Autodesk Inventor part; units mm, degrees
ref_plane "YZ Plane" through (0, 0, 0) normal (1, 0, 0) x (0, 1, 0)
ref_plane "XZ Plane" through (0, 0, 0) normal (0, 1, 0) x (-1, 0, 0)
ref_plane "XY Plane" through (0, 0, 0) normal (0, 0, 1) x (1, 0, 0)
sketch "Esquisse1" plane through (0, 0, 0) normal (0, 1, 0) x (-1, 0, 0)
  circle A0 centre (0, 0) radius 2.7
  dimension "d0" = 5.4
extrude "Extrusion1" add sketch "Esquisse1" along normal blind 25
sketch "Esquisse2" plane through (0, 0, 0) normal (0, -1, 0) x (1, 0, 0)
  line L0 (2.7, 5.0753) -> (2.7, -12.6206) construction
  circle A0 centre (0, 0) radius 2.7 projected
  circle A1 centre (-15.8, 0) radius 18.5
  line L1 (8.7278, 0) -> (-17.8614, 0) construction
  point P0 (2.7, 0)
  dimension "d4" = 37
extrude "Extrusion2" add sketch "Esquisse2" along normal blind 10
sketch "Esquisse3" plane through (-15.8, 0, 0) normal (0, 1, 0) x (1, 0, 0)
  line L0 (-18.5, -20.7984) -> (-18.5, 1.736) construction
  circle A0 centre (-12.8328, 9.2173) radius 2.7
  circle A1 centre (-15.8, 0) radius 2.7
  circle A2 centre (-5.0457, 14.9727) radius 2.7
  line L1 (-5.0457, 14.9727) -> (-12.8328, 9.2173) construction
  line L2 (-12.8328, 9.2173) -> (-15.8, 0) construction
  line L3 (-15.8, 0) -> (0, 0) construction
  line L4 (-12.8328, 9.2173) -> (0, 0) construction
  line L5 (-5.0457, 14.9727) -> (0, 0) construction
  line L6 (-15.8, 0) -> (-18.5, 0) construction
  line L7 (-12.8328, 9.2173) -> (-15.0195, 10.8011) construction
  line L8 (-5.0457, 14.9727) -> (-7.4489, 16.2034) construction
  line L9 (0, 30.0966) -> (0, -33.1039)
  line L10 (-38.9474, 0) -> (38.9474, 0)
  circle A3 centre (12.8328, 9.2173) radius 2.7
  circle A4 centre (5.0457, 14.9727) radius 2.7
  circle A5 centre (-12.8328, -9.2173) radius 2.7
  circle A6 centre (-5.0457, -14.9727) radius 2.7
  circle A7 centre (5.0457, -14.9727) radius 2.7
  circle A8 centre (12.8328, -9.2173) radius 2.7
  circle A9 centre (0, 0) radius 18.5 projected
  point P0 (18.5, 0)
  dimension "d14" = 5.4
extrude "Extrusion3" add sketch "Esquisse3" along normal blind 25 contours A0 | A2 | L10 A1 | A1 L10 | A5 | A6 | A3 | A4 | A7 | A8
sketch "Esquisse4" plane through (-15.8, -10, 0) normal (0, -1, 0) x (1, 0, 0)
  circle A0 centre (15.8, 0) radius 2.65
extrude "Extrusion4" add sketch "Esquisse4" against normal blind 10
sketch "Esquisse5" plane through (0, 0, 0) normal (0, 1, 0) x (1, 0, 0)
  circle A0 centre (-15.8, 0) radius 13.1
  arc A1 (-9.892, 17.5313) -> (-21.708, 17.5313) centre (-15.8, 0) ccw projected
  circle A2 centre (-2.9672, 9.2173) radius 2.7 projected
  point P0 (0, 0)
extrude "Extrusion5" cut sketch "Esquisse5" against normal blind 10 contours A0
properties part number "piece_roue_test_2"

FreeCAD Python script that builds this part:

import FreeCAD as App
import Part
import Sketcher
from FreeCAD import Vector
Q = App.Units.Quantity

doc = App.newDocument("Part")
params = doc.addObject("Spreadsheet::Sheet", "Params")
for row, (alias, value) in enumerate([
    ("sketch1_diameter", "5.4 mm"),
    ("pad1_length", "25 mm"),
    ("sketch2_diameter", "37 mm"),
    ("sketch2_diameter2", "5.4 mm"),
    ("pad2_length", "10 mm"),
    ("sketch3_diameter", "5.4 mm"),
    ("pad3_length", "25 mm"),
    ("sketch4_diameter", "5.3 mm"),
    ("pad4_length", "10 mm"),
    ("sketch5_diameter", "26.2 mm"),
    ("pocket1_length", "10 mm"),
], start=1):
    params.set(f"A{row}", alias)
    params.set(f"B{row}", "=" + value)
    params.setAlias(f"B{row}", alias)

body = doc.addObject("PartDesign::Body", "Body")
body.AllowCompound = True

# Sketch on XZ plane
sketch1 = body.newObject("Sketcher::SketchObject", "Sketch")
sketch1.AttachmentSupport = (doc.getObject("XZ_Plane"), [""])
sketch1.MapMode = "FlatFace"
sketch1.addGeometry(Part.Circle(Vector(0, 0, 0), Vector(0, 0, 1), 2.7), False)
sketch1.addConstraint(Sketcher.Constraint("Coincident", 0, 3, -1, 1))
sketch1.addConstraint(Sketcher.Constraint("Diameter", 0, Q("5.4 mm")))
sketch1.setExpression("Constraints[1]", "Params.sketch1_diameter")
pad1 = body.newObject("PartDesign::Pad", "Pad")
pad1.Profile = sketch1
pad1.setExpression("Length", "Params.pad1_length")
pad1.Reversed = True

# Sketch on XZ plane
sketch2 = body.newObject("Sketcher::SketchObject", "Sketch001")
sketch2.AttachmentSupport = (doc.getObject("XZ_Plane"), [""])
sketch2.MapMode = "FlatFace"
sketch2.addGeometry(Part.Circle(Vector(-15.8, 0, 0), Vector(0, 0, 1), 18.5), False)
sketch2.addGeometry(Part.Circle(Vector(0, 0, 0), Vector(0, 0, 1), 2.7), False)
sketch2.addConstraint(Sketcher.Constraint("Coincident", 1, 3, -1, 1))
sketch2.addConstraint(Sketcher.Constraint("PointOnObject", 0, 3, -1))
sketch2.addConstraint(Sketcher.Constraint("Diameter", 0, Q("37 mm")))
sketch2.addConstraint(Sketcher.Constraint("Diameter", 1, Q("5.4 mm")))
sketch2.addConstraint(Sketcher.Constraint("DistanceX", 0, 3, -1, 1, Q("15.8 mm")))
sketch2.setExpression("Constraints[2]", "Params.sketch2_diameter")
sketch2.setExpression("Constraints[3]", "Params.sketch2_diameter2")
pad2 = body.newObject("PartDesign::Pad", "Pad001")
pad2.Profile = sketch2
pad2.setExpression("Length", "Params.pad2_length")

# Sketch on XZ plane
sketch3 = body.newObject("Sketcher::SketchObject", "Sketch002")
sketch3.AttachmentSupport = (doc.getObject("XZ_Plane"), [""])
sketch3.MapMode = "FlatFace"
sketch3.addGeometry(Part.Circle(Vector(-28.6, -9.2, 0), Vector(0, 0, 1), 2.7), False)
sketch3.addGeometry(Part.Circle(Vector(-20.8, -15, 0), Vector(0, 0, 1), 2.7), False)
sketch3.addGeometry(Part.Circle(Vector(-31.6, 0, 0), Vector(0, 0, 1), 2.7), False)
sketch3.addGeometry(Part.Circle(Vector(-28.6, 9.2, 0), Vector(0, 0, 1), 2.7), False)
sketch3.addGeometry(Part.Circle(Vector(-20.8, 15, 0), Vector(0, 0, 1), 2.7), False)
sketch3.addGeometry(Part.Circle(Vector(-3, -9.2, 0), Vector(0, 0, 1), 2.7), False)
sketch3.addGeometry(Part.Circle(Vector(-10.8, -15, 0), Vector(0, 0, 1), 2.7), False)
sketch3.addGeometry(Part.Circle(Vector(-10.8, 15, 0), Vector(0, 0, 1), 2.7), False)
sketch3.addGeometry(Part.Circle(Vector(-3, 9.2, 0), Vector(0, 0, 1), 2.7), False)
sketch3.addConstraint(Sketcher.Constraint("Equal", 0, 1))
sketch3.addConstraint(Sketcher.Constraint("Equal", 1, 2))
sketch3.addConstraint(Sketcher.Constraint("Equal", 2, 3))
sketch3.addConstraint(Sketcher.Constraint("Equal", 3, 4))
sketch3.addConstraint(Sketcher.Constraint("Equal", 4, 5))
sketch3.addConstraint(Sketcher.Constraint("Equal", 5, 6))
sketch3.addConstraint(Sketcher.Constraint("Equal", 6, 7))
sketch3.addConstraint(Sketcher.Constraint("Equal", 7, 8))
sketch3.addConstraint(Sketcher.Constraint("Symmetric", 0, 3, 3, 3, -1))
sketch3.addConstraint(Sketcher.Constraint("Symmetric", 1, 3, 4, 3, -1))
sketch3.addConstraint(Sketcher.Constraint("Symmetric", 6, 3, 7, 3, -1))
sketch3.addConstraint(Sketcher.Constraint("Symmetric", 5, 3, 8, 3, -1))
sketch3.addConstraint(Sketcher.Constraint("PointOnObject", 2, 3, -1))
sketch3.addConstraint(Sketcher.Constraint("Horizontal", 0, 3, 5, 3))
sketch3.addConstraint(Sketcher.Constraint("Horizontal", 1, 3, 6, 3))
sketch3.addConstraint(Sketcher.Constraint("Diameter", 0, Q("5.4 mm")))
sketch3.addConstraint(Sketcher.Constraint("DistanceX", 2, 3, -1, 1, Q("31.6 mm")))
sketch3.addConstraint(Sketcher.Constraint("DistanceY", 1, 3, 3, 3, Q("24.19 mm")))
sketch3.addConstraint(Sketcher.Constraint("DistanceX", 0, 3, 1, 3, Q("7.787 mm")))
sketch3.addConstraint(Sketcher.Constraint("DistanceX", 6, 3, 5, 3, Q("7.787 mm")))
sketch3.addConstraint(Sketcher.Constraint("DistanceX", 0, 3, -1, 1, Q("28.6328 mm")))
sketch3.addConstraint(Sketcher.Constraint("DistanceY", 0, 3, -1, 1, Q("9.2173 mm")))
sketch3.addConstraint(Sketcher.Constraint("DistanceX", 5, 3, -1, 1, Q("2.9672 mm")))
sketch3.setExpression("Constraints[15]", "Params.sketch3_diameter")
pad3 = body.newObject("PartDesign::Pad", "Pad002")
pad3.Profile = sketch3
pad3.setExpression("Length", "Params.pad3_length")
pad3.Reversed = True

# Sketch on XZ plane
sketch4 = body.newObject("Sketcher::SketchObject", "Sketch003")
sketch4.AttachmentSupport = (doc.getObject("XZ_Plane"), [""])
sketch4.MapMode = "FlatFace"
sketch4.AttachmentOffset = App.Placement(Vector(0, 0, 10), App.Rotation())
sketch4.addGeometry(Part.Circle(Vector(0, 0, 0), Vector(0, 0, 1), 2.6), False)
sketch4.addConstraint(Sketcher.Constraint("Coincident", 0, 3, -1, 1))
sketch4.addConstraint(Sketcher.Constraint("Diameter", 0, Q("5.3 mm")))
sketch4.setExpression("Constraints[1]", "Params.sketch4_diameter")
pad4 = body.newObject("PartDesign::Pad", "Pad003")
pad4.Profile = sketch4
pad4.setExpression("Length", "Params.pad4_length")
pad4.Reversed = True

# Sketch on XZ plane
sketch5 = body.newObject("Sketcher::SketchObject", "Sketch004")
sketch5.AttachmentSupport = (doc.getObject("XZ_Plane"), [""])
sketch5.MapMode = "FlatFace"
sketch5.addGeometry(Part.Circle(Vector(-16, 0, 0), Vector(0, 0, 1), 13), False)
sketch5.addConstraint(Sketcher.Constraint("PointOnObject", 0, 3, -1))
sketch5.addConstraint(Sketcher.Constraint("Diameter", 0, Q("26.2 mm")))
sketch5.addConstraint(Sketcher.Constraint("DistanceX", 0, 3, -1, 1, Q("15.8 mm")))
sketch5.setExpression("Constraints[1]", "Params.sketch5_diameter")
pocket1 = body.newObject("PartDesign::Pocket", "Pocket")
pocket1.Profile = sketch5
pocket1.setExpression("Length", "Params.pocket1_length")
pocket1.Reversed = True

doc.recompute()
